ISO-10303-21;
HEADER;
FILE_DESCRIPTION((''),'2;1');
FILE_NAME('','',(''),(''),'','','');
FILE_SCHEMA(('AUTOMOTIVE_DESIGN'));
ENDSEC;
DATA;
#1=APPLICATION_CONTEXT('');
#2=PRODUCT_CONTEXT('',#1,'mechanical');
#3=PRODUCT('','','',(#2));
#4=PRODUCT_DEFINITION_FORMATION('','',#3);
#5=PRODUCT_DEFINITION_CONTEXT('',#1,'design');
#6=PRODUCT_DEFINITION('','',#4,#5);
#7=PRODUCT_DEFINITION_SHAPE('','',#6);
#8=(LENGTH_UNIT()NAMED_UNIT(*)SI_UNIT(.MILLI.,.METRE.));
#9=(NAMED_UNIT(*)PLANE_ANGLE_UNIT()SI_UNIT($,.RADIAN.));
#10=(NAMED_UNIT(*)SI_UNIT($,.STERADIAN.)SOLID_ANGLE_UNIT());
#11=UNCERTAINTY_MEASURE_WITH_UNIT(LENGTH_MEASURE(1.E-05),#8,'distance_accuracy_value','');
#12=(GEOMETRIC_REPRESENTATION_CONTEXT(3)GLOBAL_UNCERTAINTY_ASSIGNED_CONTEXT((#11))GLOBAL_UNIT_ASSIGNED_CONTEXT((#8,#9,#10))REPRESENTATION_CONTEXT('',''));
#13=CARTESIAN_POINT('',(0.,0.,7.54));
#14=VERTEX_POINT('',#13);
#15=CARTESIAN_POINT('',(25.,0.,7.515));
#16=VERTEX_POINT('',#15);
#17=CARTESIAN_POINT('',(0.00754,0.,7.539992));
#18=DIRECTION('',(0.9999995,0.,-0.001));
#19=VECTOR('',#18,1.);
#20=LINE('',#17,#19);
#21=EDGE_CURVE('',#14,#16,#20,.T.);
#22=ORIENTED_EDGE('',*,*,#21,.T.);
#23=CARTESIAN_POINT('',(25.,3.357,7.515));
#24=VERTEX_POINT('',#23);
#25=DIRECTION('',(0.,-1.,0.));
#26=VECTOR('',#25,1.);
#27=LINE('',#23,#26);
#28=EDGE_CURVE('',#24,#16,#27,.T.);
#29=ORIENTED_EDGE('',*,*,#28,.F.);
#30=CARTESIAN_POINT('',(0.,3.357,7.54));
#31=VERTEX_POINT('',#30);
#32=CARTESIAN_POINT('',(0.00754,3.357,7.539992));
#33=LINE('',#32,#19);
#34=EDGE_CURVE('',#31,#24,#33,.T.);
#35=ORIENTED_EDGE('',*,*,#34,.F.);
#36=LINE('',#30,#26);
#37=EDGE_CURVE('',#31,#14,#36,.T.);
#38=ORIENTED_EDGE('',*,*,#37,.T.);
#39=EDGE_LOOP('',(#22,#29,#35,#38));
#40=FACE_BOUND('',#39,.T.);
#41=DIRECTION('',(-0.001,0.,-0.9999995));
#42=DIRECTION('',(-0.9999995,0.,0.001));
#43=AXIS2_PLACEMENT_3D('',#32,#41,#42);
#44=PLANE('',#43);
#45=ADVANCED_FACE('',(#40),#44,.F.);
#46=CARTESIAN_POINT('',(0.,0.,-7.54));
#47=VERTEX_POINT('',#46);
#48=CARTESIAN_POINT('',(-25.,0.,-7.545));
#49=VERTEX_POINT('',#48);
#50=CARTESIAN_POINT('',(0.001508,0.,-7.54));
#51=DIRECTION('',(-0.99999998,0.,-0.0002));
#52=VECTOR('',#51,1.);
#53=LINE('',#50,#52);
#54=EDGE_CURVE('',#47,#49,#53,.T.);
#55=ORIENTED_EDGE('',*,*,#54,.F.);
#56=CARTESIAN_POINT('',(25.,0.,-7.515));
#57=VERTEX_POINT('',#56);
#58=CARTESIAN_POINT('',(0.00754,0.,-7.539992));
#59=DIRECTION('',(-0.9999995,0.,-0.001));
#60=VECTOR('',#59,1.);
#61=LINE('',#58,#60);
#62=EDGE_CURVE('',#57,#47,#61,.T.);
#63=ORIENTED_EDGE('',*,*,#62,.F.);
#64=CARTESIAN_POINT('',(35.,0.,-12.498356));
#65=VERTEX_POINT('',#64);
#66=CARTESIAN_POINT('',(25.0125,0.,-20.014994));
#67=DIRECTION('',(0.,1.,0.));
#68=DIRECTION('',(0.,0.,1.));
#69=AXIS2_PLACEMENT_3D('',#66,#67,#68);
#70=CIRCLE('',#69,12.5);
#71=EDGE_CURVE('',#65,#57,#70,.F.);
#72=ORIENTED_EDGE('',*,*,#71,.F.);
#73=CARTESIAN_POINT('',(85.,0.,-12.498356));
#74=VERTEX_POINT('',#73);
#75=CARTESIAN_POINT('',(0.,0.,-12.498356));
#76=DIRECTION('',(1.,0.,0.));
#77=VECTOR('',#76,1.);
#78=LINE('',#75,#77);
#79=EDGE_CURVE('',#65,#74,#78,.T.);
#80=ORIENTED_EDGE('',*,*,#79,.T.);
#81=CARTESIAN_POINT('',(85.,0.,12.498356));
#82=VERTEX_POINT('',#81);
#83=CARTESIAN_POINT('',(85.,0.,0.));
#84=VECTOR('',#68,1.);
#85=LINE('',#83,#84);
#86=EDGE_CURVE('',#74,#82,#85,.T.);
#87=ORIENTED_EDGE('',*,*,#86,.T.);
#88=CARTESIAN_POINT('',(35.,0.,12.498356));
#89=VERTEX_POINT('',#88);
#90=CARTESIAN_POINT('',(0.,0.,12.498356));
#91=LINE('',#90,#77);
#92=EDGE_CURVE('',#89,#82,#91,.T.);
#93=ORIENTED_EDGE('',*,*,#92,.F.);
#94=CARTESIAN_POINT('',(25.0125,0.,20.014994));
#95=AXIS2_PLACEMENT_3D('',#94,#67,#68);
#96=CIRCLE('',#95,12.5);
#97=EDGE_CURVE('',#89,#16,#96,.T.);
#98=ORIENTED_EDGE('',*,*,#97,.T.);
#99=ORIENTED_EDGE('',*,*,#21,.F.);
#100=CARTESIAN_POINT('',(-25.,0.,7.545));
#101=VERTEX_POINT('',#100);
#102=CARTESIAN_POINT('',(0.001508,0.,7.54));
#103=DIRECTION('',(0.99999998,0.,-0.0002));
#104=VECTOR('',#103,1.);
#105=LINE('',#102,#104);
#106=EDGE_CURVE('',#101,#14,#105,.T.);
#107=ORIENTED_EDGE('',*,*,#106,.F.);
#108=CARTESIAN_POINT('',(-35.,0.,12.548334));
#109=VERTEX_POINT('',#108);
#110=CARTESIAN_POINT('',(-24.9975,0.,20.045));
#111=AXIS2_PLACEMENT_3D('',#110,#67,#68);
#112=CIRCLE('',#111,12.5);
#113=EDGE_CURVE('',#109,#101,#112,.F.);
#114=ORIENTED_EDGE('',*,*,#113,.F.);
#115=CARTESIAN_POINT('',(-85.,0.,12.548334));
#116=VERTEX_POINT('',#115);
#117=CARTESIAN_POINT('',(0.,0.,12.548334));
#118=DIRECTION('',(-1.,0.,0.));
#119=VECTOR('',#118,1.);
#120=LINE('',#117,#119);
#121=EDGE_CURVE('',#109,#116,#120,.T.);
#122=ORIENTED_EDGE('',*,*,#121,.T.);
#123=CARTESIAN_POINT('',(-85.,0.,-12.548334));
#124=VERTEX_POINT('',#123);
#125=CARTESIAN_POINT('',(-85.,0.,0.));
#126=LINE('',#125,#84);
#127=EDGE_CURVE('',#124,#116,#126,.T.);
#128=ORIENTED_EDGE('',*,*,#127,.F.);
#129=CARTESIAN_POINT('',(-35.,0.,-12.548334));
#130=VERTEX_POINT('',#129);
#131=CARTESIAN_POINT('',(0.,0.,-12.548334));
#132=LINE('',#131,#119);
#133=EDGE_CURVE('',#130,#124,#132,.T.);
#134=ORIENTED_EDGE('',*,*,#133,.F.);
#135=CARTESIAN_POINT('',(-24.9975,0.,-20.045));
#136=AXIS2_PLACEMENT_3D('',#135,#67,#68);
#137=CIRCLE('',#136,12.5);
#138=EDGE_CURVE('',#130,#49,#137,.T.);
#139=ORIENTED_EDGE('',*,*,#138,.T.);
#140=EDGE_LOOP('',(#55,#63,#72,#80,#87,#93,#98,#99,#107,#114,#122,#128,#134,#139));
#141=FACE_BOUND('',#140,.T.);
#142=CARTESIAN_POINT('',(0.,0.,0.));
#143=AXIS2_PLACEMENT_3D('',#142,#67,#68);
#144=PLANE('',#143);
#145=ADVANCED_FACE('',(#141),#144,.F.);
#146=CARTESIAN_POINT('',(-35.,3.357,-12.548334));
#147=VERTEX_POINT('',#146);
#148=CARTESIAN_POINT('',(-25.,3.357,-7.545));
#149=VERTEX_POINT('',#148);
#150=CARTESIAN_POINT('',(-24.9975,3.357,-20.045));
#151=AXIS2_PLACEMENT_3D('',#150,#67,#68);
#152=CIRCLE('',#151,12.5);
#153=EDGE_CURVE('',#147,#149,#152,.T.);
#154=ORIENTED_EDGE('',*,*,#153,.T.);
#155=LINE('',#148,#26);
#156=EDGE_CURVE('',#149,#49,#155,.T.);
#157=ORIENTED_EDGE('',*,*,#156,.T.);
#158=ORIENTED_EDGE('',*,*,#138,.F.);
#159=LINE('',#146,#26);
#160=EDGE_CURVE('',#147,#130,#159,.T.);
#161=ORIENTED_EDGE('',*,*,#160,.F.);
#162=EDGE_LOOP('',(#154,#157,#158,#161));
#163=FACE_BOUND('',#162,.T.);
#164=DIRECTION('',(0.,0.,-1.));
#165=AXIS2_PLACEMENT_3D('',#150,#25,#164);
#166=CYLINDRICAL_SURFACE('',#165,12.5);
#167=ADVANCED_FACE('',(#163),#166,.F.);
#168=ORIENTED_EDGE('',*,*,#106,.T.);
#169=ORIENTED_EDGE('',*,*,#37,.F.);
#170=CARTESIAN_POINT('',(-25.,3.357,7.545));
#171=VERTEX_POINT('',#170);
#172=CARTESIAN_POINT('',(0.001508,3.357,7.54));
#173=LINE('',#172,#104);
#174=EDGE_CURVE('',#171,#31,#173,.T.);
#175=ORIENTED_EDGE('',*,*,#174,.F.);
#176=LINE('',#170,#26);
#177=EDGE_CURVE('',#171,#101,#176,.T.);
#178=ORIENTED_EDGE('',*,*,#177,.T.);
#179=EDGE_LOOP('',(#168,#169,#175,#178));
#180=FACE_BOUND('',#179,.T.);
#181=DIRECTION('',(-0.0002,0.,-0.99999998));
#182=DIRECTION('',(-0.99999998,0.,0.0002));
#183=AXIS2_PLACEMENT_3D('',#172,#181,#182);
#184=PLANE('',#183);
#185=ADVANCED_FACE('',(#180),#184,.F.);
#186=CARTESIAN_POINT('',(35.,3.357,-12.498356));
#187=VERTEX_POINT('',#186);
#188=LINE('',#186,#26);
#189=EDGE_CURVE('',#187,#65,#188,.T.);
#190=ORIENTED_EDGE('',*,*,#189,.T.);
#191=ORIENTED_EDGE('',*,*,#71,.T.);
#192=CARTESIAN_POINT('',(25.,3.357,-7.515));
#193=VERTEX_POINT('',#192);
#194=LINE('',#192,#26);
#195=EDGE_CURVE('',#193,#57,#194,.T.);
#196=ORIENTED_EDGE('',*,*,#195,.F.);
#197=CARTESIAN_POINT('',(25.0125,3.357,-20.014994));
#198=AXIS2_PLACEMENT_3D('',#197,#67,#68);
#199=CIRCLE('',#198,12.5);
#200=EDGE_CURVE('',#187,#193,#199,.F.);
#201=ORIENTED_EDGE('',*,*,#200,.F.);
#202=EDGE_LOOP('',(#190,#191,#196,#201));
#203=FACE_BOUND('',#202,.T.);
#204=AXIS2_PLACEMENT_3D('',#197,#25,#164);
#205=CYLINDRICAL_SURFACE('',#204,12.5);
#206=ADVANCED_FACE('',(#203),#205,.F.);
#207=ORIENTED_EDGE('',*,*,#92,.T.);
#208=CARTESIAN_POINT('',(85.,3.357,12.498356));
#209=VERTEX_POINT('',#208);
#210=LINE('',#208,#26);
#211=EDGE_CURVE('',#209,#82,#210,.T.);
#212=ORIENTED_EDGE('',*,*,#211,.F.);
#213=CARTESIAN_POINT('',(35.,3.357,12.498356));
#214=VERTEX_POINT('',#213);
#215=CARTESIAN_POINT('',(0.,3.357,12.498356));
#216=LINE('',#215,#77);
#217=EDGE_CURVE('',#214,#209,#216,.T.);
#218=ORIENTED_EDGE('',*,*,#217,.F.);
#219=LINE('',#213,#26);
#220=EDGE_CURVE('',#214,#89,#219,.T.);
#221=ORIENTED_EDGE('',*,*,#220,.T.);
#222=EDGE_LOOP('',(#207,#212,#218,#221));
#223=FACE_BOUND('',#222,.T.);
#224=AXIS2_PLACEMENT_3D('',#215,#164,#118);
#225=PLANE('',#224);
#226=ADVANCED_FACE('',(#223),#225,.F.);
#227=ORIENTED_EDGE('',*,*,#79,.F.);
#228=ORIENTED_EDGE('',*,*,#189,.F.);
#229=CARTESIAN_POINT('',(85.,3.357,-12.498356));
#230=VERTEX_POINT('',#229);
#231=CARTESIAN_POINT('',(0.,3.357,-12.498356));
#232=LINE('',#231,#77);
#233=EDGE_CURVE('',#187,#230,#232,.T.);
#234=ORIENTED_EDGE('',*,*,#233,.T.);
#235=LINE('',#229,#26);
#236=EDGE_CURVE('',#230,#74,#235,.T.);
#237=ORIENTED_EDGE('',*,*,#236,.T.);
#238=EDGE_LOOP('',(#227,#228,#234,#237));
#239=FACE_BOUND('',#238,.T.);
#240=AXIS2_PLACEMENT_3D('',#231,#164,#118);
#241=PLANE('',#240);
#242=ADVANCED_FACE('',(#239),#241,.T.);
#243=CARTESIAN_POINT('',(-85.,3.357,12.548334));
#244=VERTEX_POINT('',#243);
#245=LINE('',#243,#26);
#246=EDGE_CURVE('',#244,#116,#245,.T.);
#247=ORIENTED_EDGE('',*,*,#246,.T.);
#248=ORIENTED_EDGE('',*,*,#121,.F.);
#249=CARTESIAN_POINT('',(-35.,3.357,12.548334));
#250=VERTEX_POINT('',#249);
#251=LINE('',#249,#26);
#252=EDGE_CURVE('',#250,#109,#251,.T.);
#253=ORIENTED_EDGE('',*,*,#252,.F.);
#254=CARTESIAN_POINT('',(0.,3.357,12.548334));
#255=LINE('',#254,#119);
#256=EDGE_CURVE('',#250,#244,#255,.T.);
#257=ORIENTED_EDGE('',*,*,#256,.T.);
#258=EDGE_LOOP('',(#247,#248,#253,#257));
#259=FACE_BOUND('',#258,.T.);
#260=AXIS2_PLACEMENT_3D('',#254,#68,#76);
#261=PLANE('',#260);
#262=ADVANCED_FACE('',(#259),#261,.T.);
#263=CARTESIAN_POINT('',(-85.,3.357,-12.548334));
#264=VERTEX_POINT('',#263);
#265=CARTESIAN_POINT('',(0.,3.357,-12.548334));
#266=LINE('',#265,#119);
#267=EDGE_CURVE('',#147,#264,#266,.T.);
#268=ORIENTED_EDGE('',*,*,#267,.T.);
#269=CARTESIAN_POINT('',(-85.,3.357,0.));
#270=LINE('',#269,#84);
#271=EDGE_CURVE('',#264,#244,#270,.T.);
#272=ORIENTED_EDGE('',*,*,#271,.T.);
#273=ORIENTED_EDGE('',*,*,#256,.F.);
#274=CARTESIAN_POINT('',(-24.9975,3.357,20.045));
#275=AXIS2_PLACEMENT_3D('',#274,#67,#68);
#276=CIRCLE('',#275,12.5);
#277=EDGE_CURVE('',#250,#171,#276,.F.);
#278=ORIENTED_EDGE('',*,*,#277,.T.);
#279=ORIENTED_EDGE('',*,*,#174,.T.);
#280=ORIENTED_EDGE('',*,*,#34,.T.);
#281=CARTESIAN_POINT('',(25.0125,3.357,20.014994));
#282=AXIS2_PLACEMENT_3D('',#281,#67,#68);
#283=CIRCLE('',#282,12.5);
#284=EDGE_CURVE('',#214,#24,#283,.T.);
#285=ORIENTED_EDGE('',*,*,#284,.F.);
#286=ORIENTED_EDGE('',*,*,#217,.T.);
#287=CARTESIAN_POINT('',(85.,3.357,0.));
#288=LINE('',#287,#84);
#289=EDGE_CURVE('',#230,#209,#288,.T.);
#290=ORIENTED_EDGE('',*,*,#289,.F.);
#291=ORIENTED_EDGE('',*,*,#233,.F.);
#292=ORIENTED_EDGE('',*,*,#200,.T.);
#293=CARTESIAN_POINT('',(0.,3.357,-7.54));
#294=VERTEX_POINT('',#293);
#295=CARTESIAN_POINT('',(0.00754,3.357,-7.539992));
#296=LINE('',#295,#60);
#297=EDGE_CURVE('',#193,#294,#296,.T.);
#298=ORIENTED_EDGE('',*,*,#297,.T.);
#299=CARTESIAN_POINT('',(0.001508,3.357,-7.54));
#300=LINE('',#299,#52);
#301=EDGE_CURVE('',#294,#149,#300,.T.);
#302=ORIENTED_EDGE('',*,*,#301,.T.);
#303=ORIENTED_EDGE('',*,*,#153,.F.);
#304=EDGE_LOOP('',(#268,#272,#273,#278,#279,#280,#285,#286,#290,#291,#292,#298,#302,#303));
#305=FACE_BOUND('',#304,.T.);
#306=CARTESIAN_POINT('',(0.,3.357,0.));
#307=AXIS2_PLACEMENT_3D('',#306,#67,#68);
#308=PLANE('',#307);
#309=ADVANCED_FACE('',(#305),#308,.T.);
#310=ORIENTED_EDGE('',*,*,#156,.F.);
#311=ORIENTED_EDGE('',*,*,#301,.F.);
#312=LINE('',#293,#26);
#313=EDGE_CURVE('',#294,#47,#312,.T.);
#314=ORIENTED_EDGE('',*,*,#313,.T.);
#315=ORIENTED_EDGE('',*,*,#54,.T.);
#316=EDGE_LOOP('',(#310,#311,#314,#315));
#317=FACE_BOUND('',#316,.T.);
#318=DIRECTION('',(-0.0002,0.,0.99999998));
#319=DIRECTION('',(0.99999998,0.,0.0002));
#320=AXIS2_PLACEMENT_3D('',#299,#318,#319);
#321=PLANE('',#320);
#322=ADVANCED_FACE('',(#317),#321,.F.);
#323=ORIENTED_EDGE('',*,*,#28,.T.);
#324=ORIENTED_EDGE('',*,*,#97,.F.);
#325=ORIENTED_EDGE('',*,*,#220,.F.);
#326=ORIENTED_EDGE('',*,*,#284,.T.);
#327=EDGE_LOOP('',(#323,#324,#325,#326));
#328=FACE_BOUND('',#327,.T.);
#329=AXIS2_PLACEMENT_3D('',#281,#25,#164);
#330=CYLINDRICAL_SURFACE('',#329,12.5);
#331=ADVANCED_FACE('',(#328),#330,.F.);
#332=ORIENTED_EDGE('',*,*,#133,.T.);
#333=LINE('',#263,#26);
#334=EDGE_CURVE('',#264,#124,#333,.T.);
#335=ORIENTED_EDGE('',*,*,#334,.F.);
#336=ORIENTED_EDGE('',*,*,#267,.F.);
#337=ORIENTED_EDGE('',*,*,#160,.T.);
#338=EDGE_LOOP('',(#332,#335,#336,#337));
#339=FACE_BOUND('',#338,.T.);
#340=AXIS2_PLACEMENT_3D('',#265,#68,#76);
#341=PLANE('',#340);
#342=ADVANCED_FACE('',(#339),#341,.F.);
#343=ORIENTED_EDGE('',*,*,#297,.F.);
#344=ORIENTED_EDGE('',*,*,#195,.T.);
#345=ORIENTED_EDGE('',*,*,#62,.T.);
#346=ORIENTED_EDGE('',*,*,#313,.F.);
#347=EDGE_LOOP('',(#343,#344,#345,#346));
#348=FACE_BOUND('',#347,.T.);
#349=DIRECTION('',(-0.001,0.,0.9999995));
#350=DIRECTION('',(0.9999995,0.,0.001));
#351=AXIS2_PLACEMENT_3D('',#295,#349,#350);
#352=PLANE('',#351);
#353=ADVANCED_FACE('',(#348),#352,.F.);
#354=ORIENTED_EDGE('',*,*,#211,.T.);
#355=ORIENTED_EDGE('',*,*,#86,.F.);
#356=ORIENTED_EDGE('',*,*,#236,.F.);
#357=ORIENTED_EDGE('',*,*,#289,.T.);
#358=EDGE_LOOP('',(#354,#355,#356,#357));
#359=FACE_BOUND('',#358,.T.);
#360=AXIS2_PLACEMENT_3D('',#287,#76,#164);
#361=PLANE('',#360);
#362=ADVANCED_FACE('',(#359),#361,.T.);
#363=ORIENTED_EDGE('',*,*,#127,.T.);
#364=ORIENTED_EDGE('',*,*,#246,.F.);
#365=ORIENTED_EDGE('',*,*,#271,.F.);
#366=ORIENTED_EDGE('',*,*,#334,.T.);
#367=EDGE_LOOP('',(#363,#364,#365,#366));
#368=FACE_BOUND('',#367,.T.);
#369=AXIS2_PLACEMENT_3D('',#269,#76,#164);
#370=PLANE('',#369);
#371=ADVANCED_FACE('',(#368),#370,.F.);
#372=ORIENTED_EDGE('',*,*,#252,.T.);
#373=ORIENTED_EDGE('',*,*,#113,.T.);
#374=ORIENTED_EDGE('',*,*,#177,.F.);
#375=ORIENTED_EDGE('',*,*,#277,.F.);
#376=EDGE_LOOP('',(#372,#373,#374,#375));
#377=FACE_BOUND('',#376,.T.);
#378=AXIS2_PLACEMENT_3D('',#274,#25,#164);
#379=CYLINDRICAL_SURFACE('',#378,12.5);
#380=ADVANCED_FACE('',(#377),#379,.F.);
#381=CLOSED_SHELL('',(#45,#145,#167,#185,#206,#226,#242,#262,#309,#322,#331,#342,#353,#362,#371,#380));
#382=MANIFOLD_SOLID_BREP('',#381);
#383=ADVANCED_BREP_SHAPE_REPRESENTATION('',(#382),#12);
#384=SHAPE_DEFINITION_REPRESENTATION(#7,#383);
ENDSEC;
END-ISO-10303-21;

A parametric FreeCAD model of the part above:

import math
import FreeCAD as App
import Part
import Sketcher

V = App.Vector

doc = App.newDocument("Part")
body = doc.addObject("PartDesign::Body", "Body")

sketch1 = body.newObject("Sketcher::SketchObject", "Sketch")
sketch1.AttachmentSupport = (doc.getObject("XZ_Plane"), [""])
sketch1.MapMode = "FlatFace"
sketch1.addGeometry([
    Part.LineSegment(V(85, -12.498356, 0), V(35, -12.498356, 0)),
    Part.ArcOfCircle(Part.Circle(V(25.0125, -20.014994, 0), V(0, 0, 1), 12.5), math.radians(36.965285), math.radians(90.057296)),
    Part.LineSegment(V(25, -7.515, 0), V(0, -7.54, 0)),
    Part.LineSegment(V(0, -7.54, 0), V(-25, -7.545, 0)),
    Part.ArcOfCircle(Part.Circle(V(-24.9975, -20.045, 0), V(0, 0, 1), 12.5), math.radians(90.011459), math.radians(143.149205)),
    Part.LineSegment(V(-35, -12.548334, 0), V(-85, -12.548334, 0)),
    Part.LineSegment(V(-85, -12.548334, 0), V(-85, 12.548334, 0)),
    Part.LineSegment(V(-85, 12.548334, 0), V(-35, 12.548334, 0)),
    Part.ArcOfCircle(Part.Circle(V(-24.9975, 20.045, 0), V(0, 0, 1), 12.5), math.radians(-143.149205), math.radians(-90.011459)),
    Part.LineSegment(V(-25, 7.545, 0), V(0, 7.54, 0)),
    Part.LineSegment(V(0, 7.54, 0), V(25, 7.515, 0)),
    Part.ArcOfCircle(Part.Circle(V(25.0125, 20.014994, 0), V(0, 0, 1), 12.5), math.radians(-90.057296), math.radians(-36.965285)),
    Part.LineSegment(V(35, 12.498356, 0), V(85, 12.498356, 0)),
    Part.LineSegment(V(85, 12.498356, 0), V(85, -12.498356, 0)),
], False)
sketch1.addConstraint([
    Sketcher.Constraint("Coincident", 0, 2, 1, 1),
    Sketcher.Constraint("Tangent", 1, 2, 2, 1),
    Sketcher.Constraint("Coincident", 2, 2, 3, 1),
    Sketcher.Constraint("Tangent", 3, 2, 4, 1),
    Sketcher.Constraint("Coincident", 4, 2, 5, 1),
    Sketcher.Constraint("Coincident", 5, 2, 6, 1),
    Sketcher.Constraint("Coincident", 6, 2, 7, 1),
    Sketcher.Constraint("Coincident", 7, 2, 8, 1),
    Sketcher.Constraint("Tangent", 8, 2, 9, 1),
    Sketcher.Constraint("Coincident", 9, 2, 10, 1),
    Sketcher.Constraint("Tangent", 10, 2, 11, 1),
    Sketcher.Constraint("Coincident", 11, 2, 12, 1),
    Sketcher.Constraint("Coincident", 12, 2, 13, 1),
    Sketcher.Constraint("Coincident", 13, 2, 0, 1),
    Sketcher.Constraint("Horizontal", 0),
    Sketcher.Constraint("Horizontal", 5),
    Sketcher.Constraint("Vertical", 6),
    Sketcher.Constraint("Horizontal", 7),
    Sketcher.Constraint("Horizontal", 12),
    Sketcher.Constraint("Vertical", 13),
    Sketcher.Constraint("Equal", 1, 4),
    Sketcher.Constraint("Equal", 4, 8),
    Sketcher.Constraint("Equal", 8, 11),
    Sketcher.Constraint("Symmetric", 2, 2, 9, 2, -1, 1),
    Sketcher.Constraint("Symmetric", 4, 3, 8, 3, -1),
    Sketcher.Constraint("Symmetric", 1, 3, 11, 3, -1),
    Sketcher.Constraint("PointOnObject", 2, 2, -2),
    Sketcher.Constraint("Vertical", 4, 2, 7, 2),
    Sketcher.Constraint("Vertical", 0, 2, 11, 2),
    Sketcher.Constraint("Equal", 0, 5),
    Sketcher.Constraint("Radius", 1, 12.5),
    Sketcher.Constraint("DistanceX", 0, 2, 0, 1, 50.0),
    Sketcher.Constraint("Distance", 3, 25.0),
    Sketcher.Constraint("DistanceX", -1, 1, 0, 2, 35.0),
    Sketcher.Constraint("DistanceX", -1, 1, 1, 2, 25.0),
    Sketcher.Constraint("DistanceX", 4, 2, -1, 1, 35.0),
    Sketcher.Constraint("DistanceY", 2, 2, -1, 1, 7.54),
    Sketcher.Constraint("DistanceX", 4, 3, 1, 3, 50.01),
    Sketcher.Constraint("DistanceY", 4, 3, 8, 3, 40.089999),
])
pad1 = body.newObject("PartDesign::Pad", "Pad")
pad1.Profile = sketch1
pad1.Length = 3.357
pad1.Reversed = True

doc.recompute()
